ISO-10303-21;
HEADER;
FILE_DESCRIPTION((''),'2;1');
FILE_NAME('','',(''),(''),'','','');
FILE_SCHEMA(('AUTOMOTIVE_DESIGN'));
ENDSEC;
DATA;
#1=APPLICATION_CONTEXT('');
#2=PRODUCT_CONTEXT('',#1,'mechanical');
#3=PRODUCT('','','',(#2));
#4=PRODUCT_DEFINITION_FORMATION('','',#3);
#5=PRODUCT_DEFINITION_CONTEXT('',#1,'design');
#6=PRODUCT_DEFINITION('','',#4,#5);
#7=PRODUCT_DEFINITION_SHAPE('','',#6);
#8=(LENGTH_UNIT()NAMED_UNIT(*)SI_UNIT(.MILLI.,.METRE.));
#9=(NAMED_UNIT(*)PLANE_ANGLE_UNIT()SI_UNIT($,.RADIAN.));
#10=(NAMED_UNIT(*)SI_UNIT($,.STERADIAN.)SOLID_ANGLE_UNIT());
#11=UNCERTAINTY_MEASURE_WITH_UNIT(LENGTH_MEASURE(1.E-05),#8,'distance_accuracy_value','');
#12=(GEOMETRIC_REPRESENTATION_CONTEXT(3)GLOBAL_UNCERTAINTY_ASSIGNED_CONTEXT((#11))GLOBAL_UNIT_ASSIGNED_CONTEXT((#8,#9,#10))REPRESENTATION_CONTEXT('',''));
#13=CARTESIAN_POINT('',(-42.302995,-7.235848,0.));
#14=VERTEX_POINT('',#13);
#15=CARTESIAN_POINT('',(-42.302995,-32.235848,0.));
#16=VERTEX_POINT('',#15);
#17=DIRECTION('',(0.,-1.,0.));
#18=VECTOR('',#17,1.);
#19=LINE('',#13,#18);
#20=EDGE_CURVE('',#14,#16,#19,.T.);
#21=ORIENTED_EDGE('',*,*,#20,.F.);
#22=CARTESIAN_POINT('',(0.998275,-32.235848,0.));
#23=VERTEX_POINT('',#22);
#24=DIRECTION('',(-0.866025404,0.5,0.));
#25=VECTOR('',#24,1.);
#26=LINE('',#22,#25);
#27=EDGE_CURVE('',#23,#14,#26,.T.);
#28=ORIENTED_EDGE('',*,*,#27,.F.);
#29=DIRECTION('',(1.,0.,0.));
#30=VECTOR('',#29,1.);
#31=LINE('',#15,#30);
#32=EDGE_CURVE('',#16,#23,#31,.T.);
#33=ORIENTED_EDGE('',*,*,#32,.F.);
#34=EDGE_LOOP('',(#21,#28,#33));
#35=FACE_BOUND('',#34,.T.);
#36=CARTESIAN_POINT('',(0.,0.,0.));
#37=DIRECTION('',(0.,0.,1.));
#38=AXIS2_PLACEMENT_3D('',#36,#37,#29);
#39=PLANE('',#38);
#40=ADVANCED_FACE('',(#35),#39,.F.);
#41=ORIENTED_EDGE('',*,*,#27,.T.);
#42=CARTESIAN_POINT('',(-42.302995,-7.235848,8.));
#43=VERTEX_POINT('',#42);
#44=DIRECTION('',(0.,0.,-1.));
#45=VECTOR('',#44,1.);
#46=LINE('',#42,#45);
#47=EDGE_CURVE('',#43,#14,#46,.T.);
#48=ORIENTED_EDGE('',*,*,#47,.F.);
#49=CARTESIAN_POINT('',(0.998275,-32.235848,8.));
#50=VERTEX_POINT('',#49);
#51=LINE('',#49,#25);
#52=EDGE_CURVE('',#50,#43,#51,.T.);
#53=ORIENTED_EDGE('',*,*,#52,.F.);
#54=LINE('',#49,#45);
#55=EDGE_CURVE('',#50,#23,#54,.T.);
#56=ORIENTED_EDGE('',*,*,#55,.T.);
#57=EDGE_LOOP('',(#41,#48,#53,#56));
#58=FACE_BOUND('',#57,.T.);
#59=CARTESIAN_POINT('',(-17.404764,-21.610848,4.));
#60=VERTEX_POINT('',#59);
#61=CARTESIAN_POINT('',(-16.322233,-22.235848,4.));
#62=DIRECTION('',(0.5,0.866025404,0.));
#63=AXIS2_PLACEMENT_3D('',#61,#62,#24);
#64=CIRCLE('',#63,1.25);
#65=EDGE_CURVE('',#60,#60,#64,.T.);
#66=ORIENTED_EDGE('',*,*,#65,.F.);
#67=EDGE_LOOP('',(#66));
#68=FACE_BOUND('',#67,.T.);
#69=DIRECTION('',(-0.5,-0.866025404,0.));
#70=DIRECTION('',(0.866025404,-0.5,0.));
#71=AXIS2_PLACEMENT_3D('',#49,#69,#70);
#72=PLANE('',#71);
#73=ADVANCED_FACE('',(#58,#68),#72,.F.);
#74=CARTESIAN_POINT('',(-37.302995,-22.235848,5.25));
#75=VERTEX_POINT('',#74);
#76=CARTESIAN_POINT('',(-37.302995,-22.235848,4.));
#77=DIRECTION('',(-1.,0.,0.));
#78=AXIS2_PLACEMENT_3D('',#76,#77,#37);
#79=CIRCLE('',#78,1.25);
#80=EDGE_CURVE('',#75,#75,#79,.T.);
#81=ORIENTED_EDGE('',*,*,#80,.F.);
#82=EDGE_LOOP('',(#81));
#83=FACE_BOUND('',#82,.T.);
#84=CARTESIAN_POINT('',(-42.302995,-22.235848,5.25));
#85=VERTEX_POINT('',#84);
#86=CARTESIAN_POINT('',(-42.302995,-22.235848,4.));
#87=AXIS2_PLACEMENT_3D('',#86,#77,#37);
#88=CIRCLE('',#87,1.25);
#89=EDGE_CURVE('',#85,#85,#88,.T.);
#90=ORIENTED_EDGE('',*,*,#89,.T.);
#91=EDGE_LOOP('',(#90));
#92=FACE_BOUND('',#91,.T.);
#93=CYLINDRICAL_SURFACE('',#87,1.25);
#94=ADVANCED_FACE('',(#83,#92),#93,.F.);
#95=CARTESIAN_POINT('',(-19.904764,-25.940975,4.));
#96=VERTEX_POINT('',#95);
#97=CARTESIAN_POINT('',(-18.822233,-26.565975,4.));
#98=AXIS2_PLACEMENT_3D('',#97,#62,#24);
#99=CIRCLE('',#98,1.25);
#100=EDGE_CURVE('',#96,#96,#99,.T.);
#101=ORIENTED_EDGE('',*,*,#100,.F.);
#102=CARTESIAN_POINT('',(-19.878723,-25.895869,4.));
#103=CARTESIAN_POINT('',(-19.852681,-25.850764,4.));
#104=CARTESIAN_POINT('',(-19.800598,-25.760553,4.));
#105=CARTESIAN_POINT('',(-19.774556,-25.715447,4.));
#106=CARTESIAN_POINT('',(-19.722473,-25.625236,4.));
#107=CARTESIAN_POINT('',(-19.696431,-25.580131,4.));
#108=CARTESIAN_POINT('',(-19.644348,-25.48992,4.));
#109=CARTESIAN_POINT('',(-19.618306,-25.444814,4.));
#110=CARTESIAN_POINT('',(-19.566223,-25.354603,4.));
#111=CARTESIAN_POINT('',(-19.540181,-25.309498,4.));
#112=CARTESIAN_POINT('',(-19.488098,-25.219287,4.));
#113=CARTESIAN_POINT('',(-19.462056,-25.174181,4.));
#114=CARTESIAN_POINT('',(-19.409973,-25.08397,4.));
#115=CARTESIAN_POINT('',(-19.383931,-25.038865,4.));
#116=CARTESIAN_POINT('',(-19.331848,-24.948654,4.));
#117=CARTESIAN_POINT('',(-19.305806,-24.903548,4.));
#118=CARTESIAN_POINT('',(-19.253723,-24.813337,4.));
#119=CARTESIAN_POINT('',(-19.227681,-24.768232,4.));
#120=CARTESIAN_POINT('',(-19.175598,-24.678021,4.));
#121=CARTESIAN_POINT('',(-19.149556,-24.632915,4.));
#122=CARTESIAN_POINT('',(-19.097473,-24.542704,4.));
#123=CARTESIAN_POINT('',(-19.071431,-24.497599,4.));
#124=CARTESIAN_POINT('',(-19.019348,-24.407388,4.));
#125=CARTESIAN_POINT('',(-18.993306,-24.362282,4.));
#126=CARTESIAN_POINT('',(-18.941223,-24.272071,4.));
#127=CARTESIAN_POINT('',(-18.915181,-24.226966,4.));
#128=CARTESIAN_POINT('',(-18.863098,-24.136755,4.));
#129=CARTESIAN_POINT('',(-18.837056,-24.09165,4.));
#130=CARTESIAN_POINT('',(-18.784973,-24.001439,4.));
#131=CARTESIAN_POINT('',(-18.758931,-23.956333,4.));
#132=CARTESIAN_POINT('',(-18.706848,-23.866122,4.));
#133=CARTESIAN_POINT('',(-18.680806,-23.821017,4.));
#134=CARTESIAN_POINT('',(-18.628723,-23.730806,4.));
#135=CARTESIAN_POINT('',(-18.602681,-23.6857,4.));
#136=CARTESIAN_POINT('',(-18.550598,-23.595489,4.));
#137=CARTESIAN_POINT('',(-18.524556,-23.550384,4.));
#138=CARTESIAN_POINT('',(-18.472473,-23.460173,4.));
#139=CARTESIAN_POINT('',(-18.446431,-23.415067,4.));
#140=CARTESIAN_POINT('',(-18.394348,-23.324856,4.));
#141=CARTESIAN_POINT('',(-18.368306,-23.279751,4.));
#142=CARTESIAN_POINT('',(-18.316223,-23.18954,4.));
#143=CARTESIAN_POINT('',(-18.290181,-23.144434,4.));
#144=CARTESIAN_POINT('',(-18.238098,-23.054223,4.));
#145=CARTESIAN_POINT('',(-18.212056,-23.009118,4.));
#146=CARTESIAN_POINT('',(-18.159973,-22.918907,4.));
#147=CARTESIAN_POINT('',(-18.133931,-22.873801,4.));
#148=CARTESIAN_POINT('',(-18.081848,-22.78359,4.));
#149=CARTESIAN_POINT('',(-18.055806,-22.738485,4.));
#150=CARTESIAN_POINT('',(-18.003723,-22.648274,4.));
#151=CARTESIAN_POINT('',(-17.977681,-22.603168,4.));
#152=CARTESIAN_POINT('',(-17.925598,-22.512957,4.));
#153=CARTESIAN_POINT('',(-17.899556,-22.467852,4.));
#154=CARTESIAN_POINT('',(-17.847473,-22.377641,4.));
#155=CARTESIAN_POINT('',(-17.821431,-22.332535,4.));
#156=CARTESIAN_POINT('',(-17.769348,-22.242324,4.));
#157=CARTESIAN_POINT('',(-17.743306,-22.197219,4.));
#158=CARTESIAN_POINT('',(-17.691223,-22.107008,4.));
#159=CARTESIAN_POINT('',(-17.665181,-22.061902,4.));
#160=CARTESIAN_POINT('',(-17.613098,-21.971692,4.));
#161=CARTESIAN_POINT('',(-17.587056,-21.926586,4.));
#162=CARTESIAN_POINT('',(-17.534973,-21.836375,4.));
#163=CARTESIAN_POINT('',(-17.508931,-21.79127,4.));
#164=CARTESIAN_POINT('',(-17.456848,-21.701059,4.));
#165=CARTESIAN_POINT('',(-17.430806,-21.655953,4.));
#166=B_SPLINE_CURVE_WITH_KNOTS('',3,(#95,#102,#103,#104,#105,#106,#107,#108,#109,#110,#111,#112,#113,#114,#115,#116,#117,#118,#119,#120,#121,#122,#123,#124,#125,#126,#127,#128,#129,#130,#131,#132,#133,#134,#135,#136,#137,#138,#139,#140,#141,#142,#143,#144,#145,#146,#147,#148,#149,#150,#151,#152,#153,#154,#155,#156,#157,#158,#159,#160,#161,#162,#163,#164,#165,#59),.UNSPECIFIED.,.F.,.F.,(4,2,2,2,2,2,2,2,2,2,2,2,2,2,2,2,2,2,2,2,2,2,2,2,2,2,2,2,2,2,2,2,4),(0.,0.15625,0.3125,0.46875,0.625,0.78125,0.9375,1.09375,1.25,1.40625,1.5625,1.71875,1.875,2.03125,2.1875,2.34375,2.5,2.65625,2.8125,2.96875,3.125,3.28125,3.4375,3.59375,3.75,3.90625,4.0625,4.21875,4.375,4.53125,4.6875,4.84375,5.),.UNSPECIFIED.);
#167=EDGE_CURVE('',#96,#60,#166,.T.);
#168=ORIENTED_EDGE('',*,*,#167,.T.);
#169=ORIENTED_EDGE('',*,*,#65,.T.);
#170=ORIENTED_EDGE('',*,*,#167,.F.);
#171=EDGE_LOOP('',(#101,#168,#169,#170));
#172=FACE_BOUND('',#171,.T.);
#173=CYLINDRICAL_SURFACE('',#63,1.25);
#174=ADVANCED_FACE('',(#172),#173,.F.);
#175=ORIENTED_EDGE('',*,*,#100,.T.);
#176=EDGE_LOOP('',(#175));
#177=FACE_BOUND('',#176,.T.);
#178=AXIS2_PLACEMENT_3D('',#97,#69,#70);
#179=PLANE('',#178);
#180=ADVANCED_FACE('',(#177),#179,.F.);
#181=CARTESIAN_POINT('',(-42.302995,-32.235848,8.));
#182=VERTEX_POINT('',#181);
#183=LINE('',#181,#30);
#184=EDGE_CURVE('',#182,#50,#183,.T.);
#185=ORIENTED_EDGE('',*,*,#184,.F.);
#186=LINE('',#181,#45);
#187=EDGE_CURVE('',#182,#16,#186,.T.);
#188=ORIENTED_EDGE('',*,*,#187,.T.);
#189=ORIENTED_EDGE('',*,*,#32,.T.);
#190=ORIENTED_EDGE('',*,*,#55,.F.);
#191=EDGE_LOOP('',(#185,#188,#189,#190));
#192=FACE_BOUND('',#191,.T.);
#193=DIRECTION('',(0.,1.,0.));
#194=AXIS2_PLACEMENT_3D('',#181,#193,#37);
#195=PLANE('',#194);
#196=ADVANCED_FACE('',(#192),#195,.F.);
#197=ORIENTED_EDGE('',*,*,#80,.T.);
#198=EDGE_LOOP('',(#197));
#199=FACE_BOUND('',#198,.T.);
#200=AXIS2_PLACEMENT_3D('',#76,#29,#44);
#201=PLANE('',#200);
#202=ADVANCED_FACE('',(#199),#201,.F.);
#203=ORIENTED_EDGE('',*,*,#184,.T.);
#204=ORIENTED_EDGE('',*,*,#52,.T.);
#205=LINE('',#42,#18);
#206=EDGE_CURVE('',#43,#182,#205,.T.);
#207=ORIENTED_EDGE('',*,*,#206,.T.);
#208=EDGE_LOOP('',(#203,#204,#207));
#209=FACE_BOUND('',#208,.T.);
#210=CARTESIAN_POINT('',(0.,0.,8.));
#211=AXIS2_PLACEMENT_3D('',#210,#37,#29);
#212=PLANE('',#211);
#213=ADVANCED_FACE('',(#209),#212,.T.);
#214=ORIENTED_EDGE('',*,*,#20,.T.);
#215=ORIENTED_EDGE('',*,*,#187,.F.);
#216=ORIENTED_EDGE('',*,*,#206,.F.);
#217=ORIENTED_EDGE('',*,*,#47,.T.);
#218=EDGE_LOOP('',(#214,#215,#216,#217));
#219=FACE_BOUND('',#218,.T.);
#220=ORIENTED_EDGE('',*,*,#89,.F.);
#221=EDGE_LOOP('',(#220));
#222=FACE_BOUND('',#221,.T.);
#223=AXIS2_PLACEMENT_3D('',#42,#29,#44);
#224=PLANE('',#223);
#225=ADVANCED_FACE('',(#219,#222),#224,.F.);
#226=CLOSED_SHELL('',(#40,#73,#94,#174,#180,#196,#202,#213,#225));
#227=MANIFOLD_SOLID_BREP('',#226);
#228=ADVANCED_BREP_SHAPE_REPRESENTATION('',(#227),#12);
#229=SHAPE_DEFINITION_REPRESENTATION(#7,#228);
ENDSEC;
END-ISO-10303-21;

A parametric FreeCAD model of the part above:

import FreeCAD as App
import Part
import Sketcher

V = App.Vector
Q = App.Units.Quantity


def add_polygon(sketch, points):
    """Adds a closed chain of lines whose ends are joined by coincident constraints."""
    first, n = sketch.GeometryCount, len(points)
    for a, b in zip(points, points[1:] + points[:1]):
        sketch.addGeometry(Part.LineSegment(App.Vector(*a, 0), App.Vector(*b, 0)), False)
    for i in range(n):
        sketch.addConstraint(Sketcher.Constraint("Coincident", first + i, 2, first + (i + 1) % n, 1))

doc = App.newDocument("Part")
body = doc.addObject("PartDesign::Body", "Body")

# Sketch on XY plane
sketch1 = doc.addObject("Sketcher::SketchObject", "Sketch")
body.addObject(sketch1)
sketch1.AttachmentSupport = (doc.XY_Plane, [""])
sketch1.MapMode = "FlatFace"
add_polygon(sketch1, [(-42.302995, -7.235848), (-42.302995, -32.235848), (0.998275, -32.235848)])  # lines 0-2
sketch1.addConstraint([
    Sketcher.Constraint("Vertical", 0),
    Sketcher.Constraint("Horizontal", 1),
    Sketcher.Constraint("DistanceY", 0, 2, 0, 1, Q("25 mm")),
    Sketcher.Constraint("Angle", 2, Q("150 deg")),
    Sketcher.Constraint("DistanceX", 0, 2, -1, 1, Q("42.302995 mm")),
    Sketcher.Constraint("DistanceY", 0, 2, -1, 1, Q("32.235848 mm")),
])
pad1 = doc.addObject("PartDesign::Pad", "Pad")
body.addObject(pad1)
pad1.Profile = sketch1
pad1.Length = 8

# Sketch on YZ plane
sketch2 = doc.addObject("Sketcher::SketchObject", "Sketch001")
body.addObject(sketch2)
sketch2.AttachmentSupport = (doc.YZ_Plane, [""])
sketch2.MapMode = "FlatFace"
sketch2.AttachmentOffset = App.Placement(V(0, 0, -42.302995), App.Rotation())
sketch2.addGeometry(Part.Circle(V(-22.235848, 4, 0), V(0, 0, 1), 1.25), False)
sketch2.addConstraint([
    Sketcher.Constraint("Diameter", 0, Q("2.5 mm")),
    Sketcher.Constraint("DistanceY", -1, 1, 0, 3, Q("4 mm")),
    Sketcher.Constraint("DistanceX", 0, 3, -1, 1, Q("22.235848 mm")),
])
doc.recompute()
hole = doc.addObject("PartDesign::Hole", "Hole")
body.addObject(hole)
hole.Profile = sketch2
hole.ThreadType = "None"
hole.Diameter = 2.5
hole.DepthType = "Dimension"
hole.Depth = 5
hole.DrillPoint = "Flat"
hole.Reversed = True

# Sketch on an angled plane
sketch3 = doc.addObject("Sketcher::SketchObject", "Sketch002")
body.addObject(sketch3)
sketch3.Placement = App.Placement(V(-13.708963, -23.74462, 0), App.Rotation(V(0.866025404, -0.5, 0), V(0, 0, -1), V(0.5, 0.866025404, 0), "ZXY"))
sketch3.addGeometry(Part.Circle(V(-3.017544, -4, 0), V(0, 0, 1), 1.25), False)
sketch3.addConstraint([
    Sketcher.Constraint("Diameter", 0, Q("2.5 mm")),
    Sketcher.Constraint("DistanceY", 0, 3, -1, 1, Q("4 mm")),
    Sketcher.Constraint("DistanceX", 0, 3, -1, 1, Q("3.017544 mm")),
])
doc.recompute()
hole2 = doc.addObject("PartDesign::Hole", "Hole001")
body.addObject(hole2)
hole2.Profile = sketch3
hole2.ThreadType = "None"
hole2.Diameter = 2.5
hole2.DepthType = "Dimension"
hole2.Depth = 5
hole2.DrillPoint = "Flat"

doc.recompute()
